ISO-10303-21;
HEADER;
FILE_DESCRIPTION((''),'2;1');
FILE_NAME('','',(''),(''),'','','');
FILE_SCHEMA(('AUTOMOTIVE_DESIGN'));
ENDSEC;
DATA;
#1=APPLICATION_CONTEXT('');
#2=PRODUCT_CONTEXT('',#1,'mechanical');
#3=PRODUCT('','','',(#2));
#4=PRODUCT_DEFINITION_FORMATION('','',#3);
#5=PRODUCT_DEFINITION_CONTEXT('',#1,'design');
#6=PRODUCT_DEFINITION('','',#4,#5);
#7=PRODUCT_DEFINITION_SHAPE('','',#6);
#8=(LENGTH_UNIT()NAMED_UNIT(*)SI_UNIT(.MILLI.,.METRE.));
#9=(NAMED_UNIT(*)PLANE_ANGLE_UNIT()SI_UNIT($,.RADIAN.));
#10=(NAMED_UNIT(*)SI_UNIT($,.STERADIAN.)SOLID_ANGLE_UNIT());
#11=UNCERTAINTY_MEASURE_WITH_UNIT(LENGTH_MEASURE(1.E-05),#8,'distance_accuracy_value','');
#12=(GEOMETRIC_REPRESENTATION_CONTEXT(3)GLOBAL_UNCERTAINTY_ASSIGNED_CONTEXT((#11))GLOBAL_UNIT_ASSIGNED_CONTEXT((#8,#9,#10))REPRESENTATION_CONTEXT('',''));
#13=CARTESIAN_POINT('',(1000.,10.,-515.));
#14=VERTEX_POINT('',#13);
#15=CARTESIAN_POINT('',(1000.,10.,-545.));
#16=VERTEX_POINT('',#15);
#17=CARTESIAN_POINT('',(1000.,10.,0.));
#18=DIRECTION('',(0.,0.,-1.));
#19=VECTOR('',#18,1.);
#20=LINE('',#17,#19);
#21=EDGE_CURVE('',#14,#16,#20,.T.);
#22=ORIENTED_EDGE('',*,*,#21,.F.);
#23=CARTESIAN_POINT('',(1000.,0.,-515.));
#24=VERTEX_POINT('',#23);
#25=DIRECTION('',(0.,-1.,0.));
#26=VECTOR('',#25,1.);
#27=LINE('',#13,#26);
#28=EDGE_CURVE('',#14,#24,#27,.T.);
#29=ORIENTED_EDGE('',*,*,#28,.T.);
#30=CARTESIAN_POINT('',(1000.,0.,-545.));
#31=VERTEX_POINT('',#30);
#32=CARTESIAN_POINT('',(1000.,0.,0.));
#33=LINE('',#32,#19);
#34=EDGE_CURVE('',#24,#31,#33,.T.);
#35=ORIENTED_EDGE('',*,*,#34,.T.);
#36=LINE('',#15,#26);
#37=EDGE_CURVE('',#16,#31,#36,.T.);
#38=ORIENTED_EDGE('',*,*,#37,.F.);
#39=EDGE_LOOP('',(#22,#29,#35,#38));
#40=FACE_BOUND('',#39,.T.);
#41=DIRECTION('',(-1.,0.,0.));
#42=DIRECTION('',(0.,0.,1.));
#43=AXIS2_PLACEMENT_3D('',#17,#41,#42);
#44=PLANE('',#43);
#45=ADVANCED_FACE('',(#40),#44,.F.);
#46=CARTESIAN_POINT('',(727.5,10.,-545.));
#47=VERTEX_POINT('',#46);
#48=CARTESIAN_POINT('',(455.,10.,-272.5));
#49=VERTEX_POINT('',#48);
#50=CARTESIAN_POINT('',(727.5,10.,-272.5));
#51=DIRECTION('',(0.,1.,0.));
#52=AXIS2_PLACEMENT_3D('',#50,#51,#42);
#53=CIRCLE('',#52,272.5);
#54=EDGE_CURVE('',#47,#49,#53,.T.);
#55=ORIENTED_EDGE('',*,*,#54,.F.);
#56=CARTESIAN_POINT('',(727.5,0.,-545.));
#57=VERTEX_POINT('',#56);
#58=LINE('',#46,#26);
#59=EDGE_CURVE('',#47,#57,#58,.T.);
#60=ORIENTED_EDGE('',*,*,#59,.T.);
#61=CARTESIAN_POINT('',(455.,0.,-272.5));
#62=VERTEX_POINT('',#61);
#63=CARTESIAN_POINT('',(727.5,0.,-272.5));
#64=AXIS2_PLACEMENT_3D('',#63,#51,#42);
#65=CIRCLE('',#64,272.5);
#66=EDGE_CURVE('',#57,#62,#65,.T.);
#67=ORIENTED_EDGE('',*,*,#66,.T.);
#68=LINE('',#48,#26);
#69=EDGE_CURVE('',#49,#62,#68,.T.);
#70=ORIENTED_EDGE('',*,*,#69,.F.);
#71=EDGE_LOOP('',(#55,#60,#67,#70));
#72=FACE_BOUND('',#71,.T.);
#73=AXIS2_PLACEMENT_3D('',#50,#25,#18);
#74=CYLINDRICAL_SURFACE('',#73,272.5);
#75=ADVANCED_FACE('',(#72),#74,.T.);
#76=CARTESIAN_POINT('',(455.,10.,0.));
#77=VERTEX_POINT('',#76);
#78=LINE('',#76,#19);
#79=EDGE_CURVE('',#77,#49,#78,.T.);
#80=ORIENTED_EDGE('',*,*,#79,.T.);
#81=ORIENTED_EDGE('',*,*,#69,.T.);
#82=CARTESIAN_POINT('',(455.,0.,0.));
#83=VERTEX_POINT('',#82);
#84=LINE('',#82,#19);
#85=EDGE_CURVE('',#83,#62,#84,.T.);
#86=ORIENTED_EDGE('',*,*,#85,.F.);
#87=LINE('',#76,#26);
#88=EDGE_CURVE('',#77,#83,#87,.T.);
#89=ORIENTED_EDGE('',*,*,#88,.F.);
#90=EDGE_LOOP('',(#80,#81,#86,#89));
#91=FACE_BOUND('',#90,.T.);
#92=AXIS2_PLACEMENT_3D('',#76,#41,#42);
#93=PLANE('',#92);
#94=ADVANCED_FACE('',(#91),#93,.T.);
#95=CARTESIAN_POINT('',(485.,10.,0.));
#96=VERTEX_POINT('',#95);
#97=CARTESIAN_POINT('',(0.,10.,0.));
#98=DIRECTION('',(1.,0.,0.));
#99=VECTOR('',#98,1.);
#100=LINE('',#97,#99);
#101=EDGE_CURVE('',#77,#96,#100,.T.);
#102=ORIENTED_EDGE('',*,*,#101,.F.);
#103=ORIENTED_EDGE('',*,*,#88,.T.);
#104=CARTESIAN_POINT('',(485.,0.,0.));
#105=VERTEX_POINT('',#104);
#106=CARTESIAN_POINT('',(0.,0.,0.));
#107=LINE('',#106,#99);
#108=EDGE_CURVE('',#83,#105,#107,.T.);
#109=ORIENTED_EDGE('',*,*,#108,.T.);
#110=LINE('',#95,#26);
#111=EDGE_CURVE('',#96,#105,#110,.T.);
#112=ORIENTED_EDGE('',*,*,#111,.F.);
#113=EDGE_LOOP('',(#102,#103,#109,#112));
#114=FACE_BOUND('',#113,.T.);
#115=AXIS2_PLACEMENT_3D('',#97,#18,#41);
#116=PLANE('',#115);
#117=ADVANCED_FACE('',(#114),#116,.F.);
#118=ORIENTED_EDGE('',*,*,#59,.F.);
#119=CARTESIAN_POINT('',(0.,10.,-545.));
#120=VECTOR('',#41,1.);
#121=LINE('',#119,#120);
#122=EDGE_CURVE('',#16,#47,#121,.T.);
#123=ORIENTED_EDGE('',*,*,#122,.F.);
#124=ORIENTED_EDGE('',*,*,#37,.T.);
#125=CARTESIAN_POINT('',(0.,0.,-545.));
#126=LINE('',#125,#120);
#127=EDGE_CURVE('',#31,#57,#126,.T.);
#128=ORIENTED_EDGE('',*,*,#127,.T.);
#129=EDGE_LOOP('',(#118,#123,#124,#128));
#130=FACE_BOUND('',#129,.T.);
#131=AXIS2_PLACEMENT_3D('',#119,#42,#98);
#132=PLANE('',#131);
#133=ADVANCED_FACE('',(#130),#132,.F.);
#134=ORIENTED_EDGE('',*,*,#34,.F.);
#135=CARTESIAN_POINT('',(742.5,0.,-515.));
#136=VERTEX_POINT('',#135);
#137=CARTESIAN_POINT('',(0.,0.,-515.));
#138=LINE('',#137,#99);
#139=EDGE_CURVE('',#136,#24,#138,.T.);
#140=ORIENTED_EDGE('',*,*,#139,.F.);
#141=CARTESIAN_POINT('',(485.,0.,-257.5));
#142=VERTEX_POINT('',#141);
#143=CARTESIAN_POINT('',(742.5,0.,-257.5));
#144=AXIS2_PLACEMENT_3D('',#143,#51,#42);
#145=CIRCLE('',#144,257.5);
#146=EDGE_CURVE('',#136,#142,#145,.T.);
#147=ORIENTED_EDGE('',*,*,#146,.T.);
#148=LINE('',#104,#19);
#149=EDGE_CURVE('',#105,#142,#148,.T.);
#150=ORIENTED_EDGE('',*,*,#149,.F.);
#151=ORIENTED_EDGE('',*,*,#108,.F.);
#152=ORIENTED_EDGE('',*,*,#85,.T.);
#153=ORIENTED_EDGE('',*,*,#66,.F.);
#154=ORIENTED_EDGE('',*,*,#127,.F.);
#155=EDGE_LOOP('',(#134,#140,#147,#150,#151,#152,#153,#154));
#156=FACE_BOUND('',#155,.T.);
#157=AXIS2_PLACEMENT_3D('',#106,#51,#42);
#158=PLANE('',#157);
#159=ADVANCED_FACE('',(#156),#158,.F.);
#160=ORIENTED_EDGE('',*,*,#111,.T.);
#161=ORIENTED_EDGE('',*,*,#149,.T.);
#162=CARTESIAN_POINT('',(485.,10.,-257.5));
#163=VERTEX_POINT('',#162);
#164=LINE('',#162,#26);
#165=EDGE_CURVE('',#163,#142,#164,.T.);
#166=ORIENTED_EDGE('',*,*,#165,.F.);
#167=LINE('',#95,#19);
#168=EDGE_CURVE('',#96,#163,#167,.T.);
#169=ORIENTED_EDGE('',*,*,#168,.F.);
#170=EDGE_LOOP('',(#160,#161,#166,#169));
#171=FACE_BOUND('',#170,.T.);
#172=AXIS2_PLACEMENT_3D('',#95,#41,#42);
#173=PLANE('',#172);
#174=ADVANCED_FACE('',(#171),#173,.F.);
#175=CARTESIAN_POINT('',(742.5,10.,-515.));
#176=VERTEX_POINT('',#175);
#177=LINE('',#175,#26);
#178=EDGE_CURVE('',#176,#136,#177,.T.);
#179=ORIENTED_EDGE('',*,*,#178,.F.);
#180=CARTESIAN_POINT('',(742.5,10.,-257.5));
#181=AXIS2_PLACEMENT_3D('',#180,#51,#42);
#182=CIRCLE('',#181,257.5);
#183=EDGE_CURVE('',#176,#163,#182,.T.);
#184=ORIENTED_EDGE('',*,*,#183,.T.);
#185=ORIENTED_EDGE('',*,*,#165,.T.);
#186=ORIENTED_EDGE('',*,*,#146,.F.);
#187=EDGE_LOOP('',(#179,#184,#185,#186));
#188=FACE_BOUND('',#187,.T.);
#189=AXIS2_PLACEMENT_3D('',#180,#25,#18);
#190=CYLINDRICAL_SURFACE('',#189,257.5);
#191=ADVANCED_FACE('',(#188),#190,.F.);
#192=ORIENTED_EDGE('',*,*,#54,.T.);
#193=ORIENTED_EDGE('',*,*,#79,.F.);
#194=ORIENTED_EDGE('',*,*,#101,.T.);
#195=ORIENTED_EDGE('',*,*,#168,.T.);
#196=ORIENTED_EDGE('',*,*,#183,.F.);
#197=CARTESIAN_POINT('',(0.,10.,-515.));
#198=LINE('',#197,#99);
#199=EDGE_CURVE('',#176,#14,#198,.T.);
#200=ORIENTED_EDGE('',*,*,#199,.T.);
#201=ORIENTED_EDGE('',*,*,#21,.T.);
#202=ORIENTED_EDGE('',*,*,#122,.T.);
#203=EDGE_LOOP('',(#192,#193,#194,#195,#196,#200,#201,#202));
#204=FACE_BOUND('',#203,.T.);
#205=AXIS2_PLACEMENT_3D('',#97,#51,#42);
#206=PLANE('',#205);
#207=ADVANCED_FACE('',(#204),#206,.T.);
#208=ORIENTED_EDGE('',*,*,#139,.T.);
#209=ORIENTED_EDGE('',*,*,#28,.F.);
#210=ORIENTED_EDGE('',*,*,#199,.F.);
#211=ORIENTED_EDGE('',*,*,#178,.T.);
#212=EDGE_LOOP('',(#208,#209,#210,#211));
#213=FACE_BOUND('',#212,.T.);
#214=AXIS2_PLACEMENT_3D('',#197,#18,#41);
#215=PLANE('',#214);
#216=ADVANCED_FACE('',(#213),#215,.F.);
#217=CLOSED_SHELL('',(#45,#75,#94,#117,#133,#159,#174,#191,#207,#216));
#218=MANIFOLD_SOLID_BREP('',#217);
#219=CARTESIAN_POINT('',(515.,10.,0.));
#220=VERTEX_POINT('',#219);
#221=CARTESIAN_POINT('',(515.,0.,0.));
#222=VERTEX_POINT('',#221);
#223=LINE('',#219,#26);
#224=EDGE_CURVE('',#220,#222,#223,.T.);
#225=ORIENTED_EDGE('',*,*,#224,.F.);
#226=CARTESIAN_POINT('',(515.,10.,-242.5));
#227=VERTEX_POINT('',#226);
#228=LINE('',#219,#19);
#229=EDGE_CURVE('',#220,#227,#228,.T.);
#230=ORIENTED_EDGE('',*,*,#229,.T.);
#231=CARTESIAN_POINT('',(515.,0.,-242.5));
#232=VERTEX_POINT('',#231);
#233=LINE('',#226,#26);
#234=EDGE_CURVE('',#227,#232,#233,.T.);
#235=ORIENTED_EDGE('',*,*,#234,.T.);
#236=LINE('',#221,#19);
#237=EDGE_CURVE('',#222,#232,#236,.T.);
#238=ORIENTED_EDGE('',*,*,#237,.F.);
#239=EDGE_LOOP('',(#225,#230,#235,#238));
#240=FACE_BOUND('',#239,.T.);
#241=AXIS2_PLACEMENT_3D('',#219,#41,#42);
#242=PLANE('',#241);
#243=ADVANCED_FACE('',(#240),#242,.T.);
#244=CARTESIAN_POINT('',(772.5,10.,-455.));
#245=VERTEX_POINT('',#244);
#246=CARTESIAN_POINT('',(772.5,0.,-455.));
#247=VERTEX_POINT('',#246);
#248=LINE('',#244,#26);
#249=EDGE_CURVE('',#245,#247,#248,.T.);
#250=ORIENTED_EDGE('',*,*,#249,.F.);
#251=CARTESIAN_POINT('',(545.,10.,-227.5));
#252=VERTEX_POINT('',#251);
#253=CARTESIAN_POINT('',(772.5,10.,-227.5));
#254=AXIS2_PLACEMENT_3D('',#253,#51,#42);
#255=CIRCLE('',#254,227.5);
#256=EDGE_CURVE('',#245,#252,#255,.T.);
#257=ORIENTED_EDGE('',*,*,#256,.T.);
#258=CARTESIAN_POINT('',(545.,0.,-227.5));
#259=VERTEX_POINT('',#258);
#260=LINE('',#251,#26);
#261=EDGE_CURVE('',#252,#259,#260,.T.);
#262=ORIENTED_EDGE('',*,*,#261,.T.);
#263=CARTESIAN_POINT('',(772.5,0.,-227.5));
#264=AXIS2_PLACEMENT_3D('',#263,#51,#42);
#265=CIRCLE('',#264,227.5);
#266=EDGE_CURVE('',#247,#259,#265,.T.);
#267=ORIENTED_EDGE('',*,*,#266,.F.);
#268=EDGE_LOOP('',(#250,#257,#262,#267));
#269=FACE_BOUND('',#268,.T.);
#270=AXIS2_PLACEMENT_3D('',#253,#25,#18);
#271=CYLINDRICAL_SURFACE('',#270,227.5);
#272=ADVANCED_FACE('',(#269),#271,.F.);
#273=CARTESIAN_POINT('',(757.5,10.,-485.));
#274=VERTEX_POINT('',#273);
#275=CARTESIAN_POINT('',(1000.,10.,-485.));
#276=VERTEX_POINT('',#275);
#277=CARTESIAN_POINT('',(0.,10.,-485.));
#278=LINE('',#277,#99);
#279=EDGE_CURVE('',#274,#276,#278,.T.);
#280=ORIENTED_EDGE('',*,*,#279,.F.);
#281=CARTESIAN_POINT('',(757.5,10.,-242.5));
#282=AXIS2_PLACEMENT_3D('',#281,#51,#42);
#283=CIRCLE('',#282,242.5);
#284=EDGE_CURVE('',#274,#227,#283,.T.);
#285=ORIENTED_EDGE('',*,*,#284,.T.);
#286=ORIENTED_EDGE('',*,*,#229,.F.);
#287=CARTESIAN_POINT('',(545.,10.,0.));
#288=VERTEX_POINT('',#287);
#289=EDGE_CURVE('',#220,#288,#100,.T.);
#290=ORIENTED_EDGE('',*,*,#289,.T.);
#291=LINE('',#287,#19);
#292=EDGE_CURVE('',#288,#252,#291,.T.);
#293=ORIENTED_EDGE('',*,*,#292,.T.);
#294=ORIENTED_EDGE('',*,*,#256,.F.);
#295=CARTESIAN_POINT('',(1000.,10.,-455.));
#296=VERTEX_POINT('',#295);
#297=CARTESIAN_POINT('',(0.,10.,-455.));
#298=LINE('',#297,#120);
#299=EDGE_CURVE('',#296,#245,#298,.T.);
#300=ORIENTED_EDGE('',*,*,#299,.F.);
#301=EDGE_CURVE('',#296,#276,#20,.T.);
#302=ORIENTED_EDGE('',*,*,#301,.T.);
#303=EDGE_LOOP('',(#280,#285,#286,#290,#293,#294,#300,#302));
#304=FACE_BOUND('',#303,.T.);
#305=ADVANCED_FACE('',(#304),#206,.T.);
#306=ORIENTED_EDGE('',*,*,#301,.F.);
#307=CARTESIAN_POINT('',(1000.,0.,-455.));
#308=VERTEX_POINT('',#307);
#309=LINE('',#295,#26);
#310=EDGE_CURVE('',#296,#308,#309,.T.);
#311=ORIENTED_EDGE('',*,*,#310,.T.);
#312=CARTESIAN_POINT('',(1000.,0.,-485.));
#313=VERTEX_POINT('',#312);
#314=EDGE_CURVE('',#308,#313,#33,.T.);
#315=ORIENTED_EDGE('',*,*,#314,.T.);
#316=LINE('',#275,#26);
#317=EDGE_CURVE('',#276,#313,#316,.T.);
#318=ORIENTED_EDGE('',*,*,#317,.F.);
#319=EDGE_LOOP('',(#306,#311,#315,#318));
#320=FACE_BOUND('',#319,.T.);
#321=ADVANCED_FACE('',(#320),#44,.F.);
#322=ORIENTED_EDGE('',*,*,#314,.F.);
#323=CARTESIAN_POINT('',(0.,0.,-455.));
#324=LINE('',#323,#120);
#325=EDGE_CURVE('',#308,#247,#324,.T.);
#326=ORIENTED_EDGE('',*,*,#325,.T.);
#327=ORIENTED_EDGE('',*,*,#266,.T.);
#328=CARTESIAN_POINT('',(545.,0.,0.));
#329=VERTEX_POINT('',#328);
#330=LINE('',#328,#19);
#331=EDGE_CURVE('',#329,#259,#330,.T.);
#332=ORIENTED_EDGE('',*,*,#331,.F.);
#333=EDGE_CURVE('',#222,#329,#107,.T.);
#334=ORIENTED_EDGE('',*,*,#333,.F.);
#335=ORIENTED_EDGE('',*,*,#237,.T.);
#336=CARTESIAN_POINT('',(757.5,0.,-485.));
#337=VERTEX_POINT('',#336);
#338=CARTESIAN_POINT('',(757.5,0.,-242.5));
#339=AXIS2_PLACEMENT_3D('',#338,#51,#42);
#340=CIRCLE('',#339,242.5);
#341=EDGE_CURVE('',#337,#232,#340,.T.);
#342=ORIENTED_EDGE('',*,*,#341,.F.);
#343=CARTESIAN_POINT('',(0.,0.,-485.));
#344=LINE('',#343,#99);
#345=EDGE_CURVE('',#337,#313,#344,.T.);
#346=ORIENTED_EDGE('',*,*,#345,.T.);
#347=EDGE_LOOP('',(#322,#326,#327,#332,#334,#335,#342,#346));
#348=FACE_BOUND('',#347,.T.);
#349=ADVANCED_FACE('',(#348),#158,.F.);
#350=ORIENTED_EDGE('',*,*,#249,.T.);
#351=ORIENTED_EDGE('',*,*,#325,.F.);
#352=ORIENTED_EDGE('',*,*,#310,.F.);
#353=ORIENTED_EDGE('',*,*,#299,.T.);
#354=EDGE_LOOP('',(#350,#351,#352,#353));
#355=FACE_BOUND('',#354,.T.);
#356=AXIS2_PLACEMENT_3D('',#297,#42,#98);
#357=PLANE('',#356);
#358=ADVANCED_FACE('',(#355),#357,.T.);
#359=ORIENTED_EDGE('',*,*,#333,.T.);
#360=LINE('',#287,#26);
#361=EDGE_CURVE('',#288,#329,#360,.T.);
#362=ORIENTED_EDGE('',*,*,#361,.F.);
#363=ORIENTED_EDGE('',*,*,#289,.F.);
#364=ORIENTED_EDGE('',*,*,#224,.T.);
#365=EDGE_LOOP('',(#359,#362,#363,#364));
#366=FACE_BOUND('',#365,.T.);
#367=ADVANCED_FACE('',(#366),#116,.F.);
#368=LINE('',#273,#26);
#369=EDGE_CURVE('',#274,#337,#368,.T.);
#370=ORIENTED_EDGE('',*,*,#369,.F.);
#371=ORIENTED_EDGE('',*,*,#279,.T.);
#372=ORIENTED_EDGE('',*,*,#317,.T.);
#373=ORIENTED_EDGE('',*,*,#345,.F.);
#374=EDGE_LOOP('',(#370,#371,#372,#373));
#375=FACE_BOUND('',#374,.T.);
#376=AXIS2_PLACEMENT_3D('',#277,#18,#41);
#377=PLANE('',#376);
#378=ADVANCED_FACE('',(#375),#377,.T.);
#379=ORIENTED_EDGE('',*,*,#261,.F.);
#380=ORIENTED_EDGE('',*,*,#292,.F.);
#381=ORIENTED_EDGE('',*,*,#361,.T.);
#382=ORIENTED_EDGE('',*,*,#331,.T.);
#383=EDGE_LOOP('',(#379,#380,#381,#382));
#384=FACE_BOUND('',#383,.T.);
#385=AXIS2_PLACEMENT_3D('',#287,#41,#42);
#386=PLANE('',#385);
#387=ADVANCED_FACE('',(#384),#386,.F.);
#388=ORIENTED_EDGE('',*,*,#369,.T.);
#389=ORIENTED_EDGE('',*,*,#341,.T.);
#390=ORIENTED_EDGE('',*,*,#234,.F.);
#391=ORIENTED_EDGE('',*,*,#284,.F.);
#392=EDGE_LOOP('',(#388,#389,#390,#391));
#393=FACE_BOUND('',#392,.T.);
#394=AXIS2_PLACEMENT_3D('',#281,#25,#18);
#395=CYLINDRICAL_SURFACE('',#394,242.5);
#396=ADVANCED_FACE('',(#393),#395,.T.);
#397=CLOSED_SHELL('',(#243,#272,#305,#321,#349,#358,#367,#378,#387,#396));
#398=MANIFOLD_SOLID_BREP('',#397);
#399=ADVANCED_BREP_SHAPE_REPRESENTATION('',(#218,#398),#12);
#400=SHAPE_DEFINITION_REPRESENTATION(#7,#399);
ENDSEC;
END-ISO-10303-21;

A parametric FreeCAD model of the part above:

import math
import FreeCAD as App
import Part
import Sketcher

V = App.Vector
Q = App.Units.Quantity

doc = App.newDocument("Part")
body = doc.addObject("PartDesign::Body", "Body")

# Sketch on XZ plane
sketch1 = doc.addObject("Sketcher::SketchObject", "Sketch")
body.addObject(sketch1)
sketch1.AttachmentSupport = (doc.XZ_Plane, [""])
sketch1.MapMode = "FlatFace"
sketch1.addGeometry([
    Part.LineSegment(V(455, -272, 0), V(455, 0, 0)),  # 0
    Part.LineSegment(V(455, 0, 0), V(485, 0, 0)),  # 1
    Part.LineSegment(V(485, 0, 0), V(485, -258, 0)),  # 2
    Part.ArcOfCircle(Part.Circle(V(742, -258, 0), V(0, 0, 1), 257), math.radians(180), math.radians(270)),  # 3
    Part.LineSegment(V(742, -515, 0), V(1000, -515, 0)),  # 4
    Part.LineSegment(V(1000, -515, 0), V(1000, -545, 0)),  # 5
    Part.LineSegment(V(1000, -545, 0), V(728, -545, 0)),  # 6
    Part.ArcOfCircle(Part.Circle(V(728, -272, 0), V(0, 0, 1), 273), math.radians(-180), math.radians(-90)),  # 7
], False)
sketch1.addConstraint([
    Sketcher.Constraint("Coincident", 0, 2, 1, 1),
    Sketcher.Constraint("Coincident", 1, 2, 2, 1),
    Sketcher.Constraint("Tangent", 2, 2, 3, 1),
    Sketcher.Constraint("Tangent", 3, 2, 4, 1),
    Sketcher.Constraint("Coincident", 4, 2, 5, 1),
    Sketcher.Constraint("Coincident", 5, 2, 6, 1),
    Sketcher.Constraint("Tangent", 6, 2, 7, 2),
    Sketcher.Constraint("Tangent", 7, 1, 0, 1),
    Sketcher.Constraint("Vertical", 0),
    Sketcher.Constraint("Horizontal", 1),
    Sketcher.Constraint("Vertical", 2),
    Sketcher.Constraint("Horizontal", 4),
    Sketcher.Constraint("Vertical", 5),
    Sketcher.Constraint("Horizontal", 6),
    Sketcher.Constraint("PointOnObject", 0, 2, -1),
    Sketcher.Constraint("Equal", 6, 0),
    Sketcher.Constraint("Equal", 4, 2),
    Sketcher.Constraint("Radius", 3, Q("257.5 mm")),
    Sketcher.Constraint("Radius", 7, Q("272.5 mm")),
    Sketcher.Constraint("DistanceX", 1, 1, 1, 2, Q("30 mm")),
    Sketcher.Constraint("DistanceX", 4, 1, 4, 2, Q("257.5 mm")),
    Sketcher.Constraint("DistanceX", -1, 1, 0, 2, Q("455 mm")),
])
pad1 = doc.addObject("PartDesign::Pad", "Pad")
body.addObject(pad1)
pad1.Profile = sketch1
pad1.Length = 10
pad1.Reversed = True
body2 = doc.addObject("PartDesign::Body", "Body001")

# Sketch on XZ plane
sketch2 = doc.addObject("Sketcher::SketchObject", "Sketch001")
body2.addObject(sketch2)
sketch2.AttachmentSupport = (doc.getObject("XZ_Plane001"), [""])
sketch2.MapMode = "FlatFace"
sketch2.addGeometry([
    Part.LineSegment(V(515, -242, 0), V(515, 0, 0)),  # 0
    Part.LineSegment(V(515, 0, 0), V(545, 0, 0)),  # 1
    Part.LineSegment(V(545, 0, 0), V(545, -228, 0)),  # 2
    Part.ArcOfCircle(Part.Circle(V(772, -228, 0), V(0, 0, 1), 228), math.radians(180), math.radians(270)),  # 3
    Part.LineSegment(V(772, -455, 0), V(1000, -455, 0)),  # 4
    Part.LineSegment(V(1000, -455, 0), V(1000, -485, 0)),  # 5
    Part.LineSegment(V(1000, -485, 0), V(758, -485, 0)),  # 6
    Part.ArcOfCircle(Part.Circle(V(757, -243, 0), V(0, 0, 1), 242), math.radians(180), math.radians(270)),  # 7
], False)
sketch2.addConstraint([
    Sketcher.Constraint("Coincident", 0, 2, 1, 1),
    Sketcher.Constraint("Coincident", 1, 2, 2, 1),
    Sketcher.Constraint("Tangent", 2, 2, 3, 1),
    Sketcher.Constraint("Tangent", 3, 2, 4, 1),
    Sketcher.Constraint("Coincident", 4, 2, 5, 1),
    Sketcher.Constraint("Coincident", 5, 2, 6, 1),
    Sketcher.Constraint("Tangent", 6, 2, 7, 2),
    Sketcher.Constraint("Tangent", 7, 1, 0, 1),
    Sketcher.Constraint("Vertical", 0),
    Sketcher.Constraint("Horizontal", 1),
    Sketcher.Constraint("Vertical", 2),
    Sketcher.Constraint("Horizontal", 4),
    Sketcher.Constraint("Vertical", 5),
    Sketcher.Constraint("Horizontal", 6),
    Sketcher.Constraint("PointOnObject", 0, 2, -1),
    Sketcher.Constraint("Equal", 6, 0),
    Sketcher.Constraint("Equal", 4, 2),
    Sketcher.Constraint("Radius", 3, Q("227.5 mm")),
    Sketcher.Constraint("Radius", 7, Q("242.5 mm")),
    Sketcher.Constraint("DistanceX", 1, 1, 1, 2, Q("30 mm")),
    Sketcher.Constraint("DistanceX", 4, 1, 4, 2, Q("227.5 mm")),
    Sketcher.Constraint("DistanceX", -1, 1, 0, 2, Q("515 mm")),
])
pad2 = doc.addObject("PartDesign::Pad", "Pad001")
body2.addObject(pad2)
pad2.Profile = sketch2
pad2.Length = 10
pad2.Reversed = True

doc.recompute()
